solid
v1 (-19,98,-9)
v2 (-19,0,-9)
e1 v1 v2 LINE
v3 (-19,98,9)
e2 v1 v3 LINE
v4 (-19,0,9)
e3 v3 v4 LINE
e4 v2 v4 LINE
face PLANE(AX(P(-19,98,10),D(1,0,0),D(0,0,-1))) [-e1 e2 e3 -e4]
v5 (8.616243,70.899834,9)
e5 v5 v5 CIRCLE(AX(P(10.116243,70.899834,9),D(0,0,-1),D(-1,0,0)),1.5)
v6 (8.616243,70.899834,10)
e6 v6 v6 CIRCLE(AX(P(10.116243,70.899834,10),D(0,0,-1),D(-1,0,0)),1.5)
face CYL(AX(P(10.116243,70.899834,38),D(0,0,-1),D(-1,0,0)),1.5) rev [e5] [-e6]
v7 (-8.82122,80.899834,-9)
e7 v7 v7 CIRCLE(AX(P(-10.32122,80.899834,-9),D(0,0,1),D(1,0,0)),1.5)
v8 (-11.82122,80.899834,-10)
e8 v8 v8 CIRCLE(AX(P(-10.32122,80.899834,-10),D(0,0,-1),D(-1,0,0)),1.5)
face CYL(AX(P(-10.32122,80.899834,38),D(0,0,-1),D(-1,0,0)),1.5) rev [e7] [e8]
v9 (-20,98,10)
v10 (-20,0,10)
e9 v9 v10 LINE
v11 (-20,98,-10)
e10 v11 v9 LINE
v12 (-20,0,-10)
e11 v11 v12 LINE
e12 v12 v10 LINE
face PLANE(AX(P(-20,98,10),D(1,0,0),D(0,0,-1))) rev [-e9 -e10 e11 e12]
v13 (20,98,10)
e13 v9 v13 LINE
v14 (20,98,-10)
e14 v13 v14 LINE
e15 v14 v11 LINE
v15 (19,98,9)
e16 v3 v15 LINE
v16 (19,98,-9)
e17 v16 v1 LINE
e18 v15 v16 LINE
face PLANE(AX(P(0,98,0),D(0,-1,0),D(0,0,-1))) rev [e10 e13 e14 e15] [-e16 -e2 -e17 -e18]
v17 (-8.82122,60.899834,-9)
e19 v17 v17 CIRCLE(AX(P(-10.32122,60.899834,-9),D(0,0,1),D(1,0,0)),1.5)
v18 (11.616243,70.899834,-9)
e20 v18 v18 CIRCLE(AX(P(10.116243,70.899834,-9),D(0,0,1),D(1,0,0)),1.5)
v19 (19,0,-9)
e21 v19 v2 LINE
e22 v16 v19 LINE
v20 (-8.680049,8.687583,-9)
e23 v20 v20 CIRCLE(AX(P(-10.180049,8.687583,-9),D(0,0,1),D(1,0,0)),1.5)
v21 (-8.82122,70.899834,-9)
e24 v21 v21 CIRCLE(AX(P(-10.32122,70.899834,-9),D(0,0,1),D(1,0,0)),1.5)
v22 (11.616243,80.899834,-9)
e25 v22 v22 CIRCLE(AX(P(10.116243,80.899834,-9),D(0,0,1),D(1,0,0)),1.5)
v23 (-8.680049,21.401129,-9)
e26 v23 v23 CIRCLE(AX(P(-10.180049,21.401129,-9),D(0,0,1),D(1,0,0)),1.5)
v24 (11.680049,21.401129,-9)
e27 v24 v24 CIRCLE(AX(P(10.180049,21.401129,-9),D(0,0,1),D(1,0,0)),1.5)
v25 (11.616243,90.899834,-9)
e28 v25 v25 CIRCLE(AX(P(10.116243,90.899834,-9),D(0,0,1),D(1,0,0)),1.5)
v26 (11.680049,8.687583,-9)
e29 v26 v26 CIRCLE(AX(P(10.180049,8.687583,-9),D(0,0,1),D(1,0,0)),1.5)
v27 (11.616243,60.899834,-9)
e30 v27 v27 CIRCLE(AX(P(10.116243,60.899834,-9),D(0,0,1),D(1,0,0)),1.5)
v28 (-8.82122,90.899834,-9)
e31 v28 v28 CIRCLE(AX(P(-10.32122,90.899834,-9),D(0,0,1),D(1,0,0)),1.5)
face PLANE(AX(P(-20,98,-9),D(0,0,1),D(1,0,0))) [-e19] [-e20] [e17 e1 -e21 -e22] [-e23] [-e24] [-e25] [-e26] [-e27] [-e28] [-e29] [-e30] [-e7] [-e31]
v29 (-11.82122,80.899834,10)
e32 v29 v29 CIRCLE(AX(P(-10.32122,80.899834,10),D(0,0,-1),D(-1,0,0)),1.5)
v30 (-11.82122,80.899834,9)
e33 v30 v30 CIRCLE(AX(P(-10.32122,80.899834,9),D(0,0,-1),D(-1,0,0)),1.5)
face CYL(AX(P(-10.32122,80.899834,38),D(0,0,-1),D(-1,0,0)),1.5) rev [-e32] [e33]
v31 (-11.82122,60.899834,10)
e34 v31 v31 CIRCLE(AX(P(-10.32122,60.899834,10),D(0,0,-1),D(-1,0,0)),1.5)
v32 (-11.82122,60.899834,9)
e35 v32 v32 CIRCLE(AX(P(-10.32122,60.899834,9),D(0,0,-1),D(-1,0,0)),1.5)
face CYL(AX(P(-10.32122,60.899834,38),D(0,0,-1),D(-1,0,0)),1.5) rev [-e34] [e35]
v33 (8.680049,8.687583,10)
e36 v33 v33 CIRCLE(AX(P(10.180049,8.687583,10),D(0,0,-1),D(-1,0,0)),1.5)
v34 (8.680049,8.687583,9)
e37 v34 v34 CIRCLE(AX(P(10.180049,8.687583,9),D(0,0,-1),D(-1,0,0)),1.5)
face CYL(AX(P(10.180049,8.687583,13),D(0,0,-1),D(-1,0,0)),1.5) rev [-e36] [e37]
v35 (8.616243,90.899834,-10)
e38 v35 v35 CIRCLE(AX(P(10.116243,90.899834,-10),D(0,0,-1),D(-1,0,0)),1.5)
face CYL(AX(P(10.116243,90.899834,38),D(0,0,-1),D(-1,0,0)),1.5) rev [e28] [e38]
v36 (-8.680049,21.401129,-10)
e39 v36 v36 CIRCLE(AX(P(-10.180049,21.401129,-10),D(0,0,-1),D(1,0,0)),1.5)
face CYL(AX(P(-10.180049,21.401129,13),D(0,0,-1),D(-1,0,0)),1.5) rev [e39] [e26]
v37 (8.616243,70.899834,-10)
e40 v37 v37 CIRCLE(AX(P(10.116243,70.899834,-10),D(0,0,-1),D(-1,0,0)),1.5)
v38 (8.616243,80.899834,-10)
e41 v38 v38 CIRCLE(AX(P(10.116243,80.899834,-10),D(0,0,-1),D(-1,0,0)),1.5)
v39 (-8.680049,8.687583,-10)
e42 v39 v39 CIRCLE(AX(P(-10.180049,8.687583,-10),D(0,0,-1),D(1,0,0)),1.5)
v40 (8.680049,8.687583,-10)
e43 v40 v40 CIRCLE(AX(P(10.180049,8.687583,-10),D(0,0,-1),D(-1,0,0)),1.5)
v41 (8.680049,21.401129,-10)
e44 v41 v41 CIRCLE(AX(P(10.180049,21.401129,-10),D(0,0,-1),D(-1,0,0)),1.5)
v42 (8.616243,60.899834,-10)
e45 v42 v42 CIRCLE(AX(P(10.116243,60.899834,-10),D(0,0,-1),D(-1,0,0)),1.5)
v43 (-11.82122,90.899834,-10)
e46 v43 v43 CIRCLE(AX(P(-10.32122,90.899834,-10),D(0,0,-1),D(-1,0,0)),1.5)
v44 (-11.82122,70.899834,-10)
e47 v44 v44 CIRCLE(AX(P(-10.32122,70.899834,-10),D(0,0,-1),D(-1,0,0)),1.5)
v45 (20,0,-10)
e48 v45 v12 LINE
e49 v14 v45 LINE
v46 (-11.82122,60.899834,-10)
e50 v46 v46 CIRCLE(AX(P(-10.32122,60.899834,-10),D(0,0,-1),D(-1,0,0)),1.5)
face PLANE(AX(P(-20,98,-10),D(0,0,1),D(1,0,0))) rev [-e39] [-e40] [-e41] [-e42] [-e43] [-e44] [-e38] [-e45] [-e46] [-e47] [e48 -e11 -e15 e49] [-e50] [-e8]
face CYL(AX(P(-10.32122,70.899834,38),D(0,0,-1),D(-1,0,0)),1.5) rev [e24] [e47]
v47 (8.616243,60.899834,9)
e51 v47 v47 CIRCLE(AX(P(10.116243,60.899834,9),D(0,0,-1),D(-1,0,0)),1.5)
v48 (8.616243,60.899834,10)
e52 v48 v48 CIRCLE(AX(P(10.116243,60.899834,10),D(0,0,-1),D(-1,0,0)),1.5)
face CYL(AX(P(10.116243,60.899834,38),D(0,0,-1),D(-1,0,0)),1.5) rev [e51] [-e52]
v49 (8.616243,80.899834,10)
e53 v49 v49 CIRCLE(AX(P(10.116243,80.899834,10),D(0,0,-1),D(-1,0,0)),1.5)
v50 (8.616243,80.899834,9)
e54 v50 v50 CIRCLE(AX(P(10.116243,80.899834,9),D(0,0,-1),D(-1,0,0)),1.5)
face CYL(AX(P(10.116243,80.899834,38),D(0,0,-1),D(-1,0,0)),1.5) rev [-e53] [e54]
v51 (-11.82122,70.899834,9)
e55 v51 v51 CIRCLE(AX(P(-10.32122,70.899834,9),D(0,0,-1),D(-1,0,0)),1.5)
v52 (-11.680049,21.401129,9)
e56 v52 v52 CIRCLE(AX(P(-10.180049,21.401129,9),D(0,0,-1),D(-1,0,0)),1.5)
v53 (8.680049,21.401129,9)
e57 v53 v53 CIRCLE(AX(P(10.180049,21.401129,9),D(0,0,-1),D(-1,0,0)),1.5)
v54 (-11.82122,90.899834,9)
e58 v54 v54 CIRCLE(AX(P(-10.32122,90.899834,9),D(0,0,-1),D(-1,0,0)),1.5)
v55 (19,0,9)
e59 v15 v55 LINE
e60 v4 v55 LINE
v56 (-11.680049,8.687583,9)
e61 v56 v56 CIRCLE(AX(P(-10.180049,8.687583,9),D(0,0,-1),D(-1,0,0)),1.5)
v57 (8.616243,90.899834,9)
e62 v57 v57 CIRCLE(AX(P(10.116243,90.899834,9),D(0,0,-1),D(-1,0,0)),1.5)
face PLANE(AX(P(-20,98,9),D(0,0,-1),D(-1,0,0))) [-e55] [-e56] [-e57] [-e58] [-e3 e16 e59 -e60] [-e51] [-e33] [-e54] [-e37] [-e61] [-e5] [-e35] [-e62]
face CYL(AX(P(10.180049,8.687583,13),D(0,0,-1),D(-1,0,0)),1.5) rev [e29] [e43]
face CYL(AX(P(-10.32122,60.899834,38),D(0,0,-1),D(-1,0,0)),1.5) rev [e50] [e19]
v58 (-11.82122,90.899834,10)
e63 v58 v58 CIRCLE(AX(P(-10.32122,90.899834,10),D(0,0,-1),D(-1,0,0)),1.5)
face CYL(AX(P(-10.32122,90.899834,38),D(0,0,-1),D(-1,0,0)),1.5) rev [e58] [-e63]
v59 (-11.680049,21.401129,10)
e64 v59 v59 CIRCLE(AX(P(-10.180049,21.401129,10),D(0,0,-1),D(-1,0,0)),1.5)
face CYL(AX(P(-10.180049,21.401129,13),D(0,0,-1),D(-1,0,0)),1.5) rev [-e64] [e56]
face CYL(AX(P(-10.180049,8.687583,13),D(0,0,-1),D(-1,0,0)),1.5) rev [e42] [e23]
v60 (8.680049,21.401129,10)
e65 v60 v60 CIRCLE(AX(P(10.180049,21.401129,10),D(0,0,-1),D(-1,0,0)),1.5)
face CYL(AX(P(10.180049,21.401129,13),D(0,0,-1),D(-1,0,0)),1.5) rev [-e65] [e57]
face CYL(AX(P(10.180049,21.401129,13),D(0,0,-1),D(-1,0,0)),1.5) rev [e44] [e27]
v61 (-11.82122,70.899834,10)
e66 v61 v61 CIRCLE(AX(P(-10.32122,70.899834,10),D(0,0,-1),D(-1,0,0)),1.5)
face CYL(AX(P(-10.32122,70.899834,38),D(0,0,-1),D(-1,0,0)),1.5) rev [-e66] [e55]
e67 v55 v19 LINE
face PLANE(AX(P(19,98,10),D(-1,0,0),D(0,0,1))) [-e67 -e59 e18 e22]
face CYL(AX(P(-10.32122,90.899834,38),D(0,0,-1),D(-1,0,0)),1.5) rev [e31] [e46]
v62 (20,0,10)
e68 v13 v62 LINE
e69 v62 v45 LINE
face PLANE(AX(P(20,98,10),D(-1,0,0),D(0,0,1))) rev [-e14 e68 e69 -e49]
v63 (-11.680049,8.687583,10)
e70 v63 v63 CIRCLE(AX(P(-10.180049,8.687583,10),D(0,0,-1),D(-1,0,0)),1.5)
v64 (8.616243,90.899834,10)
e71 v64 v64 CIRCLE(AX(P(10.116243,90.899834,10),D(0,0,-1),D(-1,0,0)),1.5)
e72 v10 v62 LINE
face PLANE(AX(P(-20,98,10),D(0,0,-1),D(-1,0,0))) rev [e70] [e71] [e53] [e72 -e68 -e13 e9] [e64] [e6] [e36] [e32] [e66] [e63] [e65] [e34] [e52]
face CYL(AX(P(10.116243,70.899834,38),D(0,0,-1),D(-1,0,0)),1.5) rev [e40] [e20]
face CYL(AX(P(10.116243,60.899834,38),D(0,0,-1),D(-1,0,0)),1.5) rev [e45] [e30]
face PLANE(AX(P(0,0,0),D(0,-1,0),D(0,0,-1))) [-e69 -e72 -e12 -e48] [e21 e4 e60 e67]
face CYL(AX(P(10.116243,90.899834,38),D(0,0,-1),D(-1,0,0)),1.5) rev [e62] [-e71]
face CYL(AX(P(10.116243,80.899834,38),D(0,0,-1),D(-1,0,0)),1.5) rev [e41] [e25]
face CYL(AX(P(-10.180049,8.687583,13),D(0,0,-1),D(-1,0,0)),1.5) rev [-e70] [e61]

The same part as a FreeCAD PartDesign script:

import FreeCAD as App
import Part
import Sketcher
Q = App.Units.Quantity


def faces_at(feature, points):
    """Names of the faces that lie closest to the given points."""
    faces = feature.Shape.Faces
    near = lambda p: min(range(len(faces)), key=lambda i: faces[i].distToShape(Part.Vertex(*p))[0])
    return sorted({f"Face{near(p) + 1}" for p in points})


def add_polygon(sketch, points):
    """Adds a closed chain of lines whose ends are joined by coincident constraints."""
    first, n = sketch.GeometryCount, len(points)
    for a, b in zip(points, points[1:] + points[:1]):
        sketch.addGeometry(Part.LineSegment(App.Vector(*a, 0), App.Vector(*b, 0)), False)
    for i in range(n):
        sketch.addConstraint(Sketcher.Constraint("Coincident", first + i, 2, first + (i + 1) % n, 1))

doc = App.newDocument("Part")
body = doc.addObject("PartDesign::Body", "Body")

# Sketch on XZ plane
sketch1 = body.newObject("Sketcher::SketchObject", "Sketch")
sketch1.AttachmentSupport = (doc.getObject("XZ_Plane"), [""])
sketch1.MapMode = "FlatFace"
add_polygon(sketch1, [(-20, -10), (-20, 10), (20, 10), (20, -10)])  # lines 0-3
sketch1.addConstraint([
    Sketcher.Constraint("Vertical", 0),
    Sketcher.Constraint("Horizontal", 1),
    Sketcher.Constraint("Vertical", 2),
    Sketcher.Constraint("Horizontal", 3),
    Sketcher.Constraint("Symmetric", 0, 2, 2, 2, -1, 1),
    Sketcher.Constraint("DistanceX", 1, 1, 1, 2, Q("40 mm")),
    Sketcher.Constraint("DistanceY", 0, 1, 0, 2, Q("20 mm")),
])
pad1 = body.newObject("PartDesign::Pad", "Pad")
pad1.Profile = sketch1
pad1.Length = 98
pad1.Reversed = True
doc.recompute()

thickness = body.newObject("PartDesign::Thickness", "Thickness")
thickness.Base = (pad1, faces_at(pad1, [(0, 98, 0), (0, 0, 0)]))
thickness.Value = 1
thickness.Reversed = True
thickness.Join = "Intersection"

# Sketch on XY plane
sketch2 = body.newObject("Sketcher::SketchObject", "Sketch001")
sketch2.AttachmentSupport = (doc.getObject("XY_Plane"), [""])
sketch2.MapMode = "FlatFace"
sketch2.AttachmentOffset = App.Placement(App.Vector(0, 0, -10), App.Rotation())
sketch2.addGeometry([
    Part.Circle(App.Vector(10.180049, 8.687583, 0), App.Vector(0, 0, 1), 1.5),
    Part.Circle(App.Vector(10.180049, 21.401129, 0), App.Vector(0, 0, 1), 1.5),
    Part.Circle(App.Vector(-10.180049, 21.401129, 0), App.Vector(0, 0, 1), 1.5),
    Part.Circle(App.Vector(-10.180049, 8.687583, 0), App.Vector(0, 0, 1), 1.5),
], False)
sketch2.addConstraint([
    Sketcher.Constraint("Equal", 0, 1),
    Sketcher.Constraint("Equal", 1, 2),
    Sketcher.Constraint("Equal", 2, 3),
    Sketcher.Constraint("Symmetric", 1, 3, 2, 3, -2),
    Sketcher.Constraint("Symmetric", 0, 3, 3, 3, -2),
    Sketcher.Constraint("Vertical", 0, 3, 1, 3),
    Sketcher.Constraint("Diameter", 0, Q("3 mm")),
    Sketcher.Constraint("DistanceX", 2, 3, 1, 3, Q("20.360099 mm")),
    Sketcher.Constraint("DistanceY", -1, 1, 1, 3, Q("21.401129 mm")),
    Sketcher.Constraint("DistanceY", -1, 1, 0, 3, Q("8.687583 mm")),
])
pocket1 = body.newObject("PartDesign::Pocket", "Pocket")
pocket1.Profile = sketch2
pocket1.Length = 23
pocket1.Reversed = True

# Sketch on XY plane
sketch3 = body.newObject("Sketcher::SketchObject", "Sketch002")
sketch3.AttachmentSupport = (doc.getObject("XY_Plane"), [""])
sketch3.MapMode = "FlatFace"
sketch3.AttachmentOffset = App.Placement(App.Vector(0, 0, -10), App.Rotation())
sketch3.addGeometry([
    Part.Circle(App.Vector(-10.32122, 60.899834, 0), App.Vector(0, 0, 1), 1.5),  # 0
    Part.Circle(App.Vector(10.116243, 60.899834, 0), App.Vector(0, 0, 1), 1.5),  # 1
    Part.Circle(App.Vector(10.116243, 70.899834, 0), App.Vector(0, 0, 1), 1.5),  # 2
    Part.Circle(App.Vector(-10.32122, 70.899834, 0), App.Vector(0, 0, 1), 1.5),  # 3
    Part.Circle(App.Vector(-10.32122, 80.899834, 0), App.Vector(0, 0, 1), 1.5),  # 4
    Part.Circle(App.Vector(10.116243, 80.899834, 0), App.Vector(0, 0, 1), 1.5),  # 5
    Part.Circle(App.Vector(-10.32122, 90.899834, 0), App.Vector(0, 0, 1), 1.5),  # 6
    Part.Circle(App.Vector(10.116243, 90.899834, 0), App.Vector(0, 0, 1), 1.5),  # 7
], False)
sketch3.addConstraint([
    Sketcher.Constraint("Equal", 0, 1),
    Sketcher.Constraint("Equal", 1, 2),
    Sketcher.Constraint("Equal", 2, 3),
    Sketcher.Constraint("Equal", 3, 4),
    Sketcher.Constraint("Equal", 4, 5),
    Sketcher.Constraint("Equal", 5, 6),
    Sketcher.Constraint("Equal", 6, 7),
    Sketcher.Constraint("Horizontal", 0, 3, 1, 3),
    Sketcher.Constraint("Horizontal", 2, 3, 3, 3),
    Sketcher.Constraint("Horizontal", 4, 3, 5, 3),
    Sketcher.Constraint("Horizontal", 6, 3, 7, 3),
    Sketcher.Constraint("Vertical", 1, 3, 2, 3),
    Sketcher.Constraint("Vertical", 0, 3, 3, 3),
    Sketcher.Constraint("Vertical", 3, 3, 4, 3),
    Sketcher.Constraint("Vertical", 2, 3, 5, 3),
    Sketcher.Constraint("Vertical", 4, 3, 6, 3),
    Sketcher.Constraint("Vertical", 5, 3, 7, 3),
    Sketcher.Constraint("Diameter", 0, Q("3 mm")),
    Sketcher.Constraint("DistanceY", 1, 3, 2, 3, Q("10 mm")),
    Sketcher.Constraint("DistanceY", 3, 3, 4, 3, Q("10 mm")),
    Sketcher.Constraint("DistanceY", 4, 3, 6, 3, Q("10 mm")),
    Sketcher.Constraint("DistanceX", 0, 3, -1, 1, Q("10.32122 mm")),
    Sketcher.Constraint("DistanceY", -1, 1, 0, 3, Q("60.899834 mm")),
    Sketcher.Constraint("DistanceX", -1, 1, 1, 3, Q("10.116243 mm")),
])
pocket2 = body.newObject("PartDesign::Pocket", "Pocket001")
pocket2.Profile = sketch3
pocket2.Length = 48
pocket2.Reversed = True

doc.recompute()
